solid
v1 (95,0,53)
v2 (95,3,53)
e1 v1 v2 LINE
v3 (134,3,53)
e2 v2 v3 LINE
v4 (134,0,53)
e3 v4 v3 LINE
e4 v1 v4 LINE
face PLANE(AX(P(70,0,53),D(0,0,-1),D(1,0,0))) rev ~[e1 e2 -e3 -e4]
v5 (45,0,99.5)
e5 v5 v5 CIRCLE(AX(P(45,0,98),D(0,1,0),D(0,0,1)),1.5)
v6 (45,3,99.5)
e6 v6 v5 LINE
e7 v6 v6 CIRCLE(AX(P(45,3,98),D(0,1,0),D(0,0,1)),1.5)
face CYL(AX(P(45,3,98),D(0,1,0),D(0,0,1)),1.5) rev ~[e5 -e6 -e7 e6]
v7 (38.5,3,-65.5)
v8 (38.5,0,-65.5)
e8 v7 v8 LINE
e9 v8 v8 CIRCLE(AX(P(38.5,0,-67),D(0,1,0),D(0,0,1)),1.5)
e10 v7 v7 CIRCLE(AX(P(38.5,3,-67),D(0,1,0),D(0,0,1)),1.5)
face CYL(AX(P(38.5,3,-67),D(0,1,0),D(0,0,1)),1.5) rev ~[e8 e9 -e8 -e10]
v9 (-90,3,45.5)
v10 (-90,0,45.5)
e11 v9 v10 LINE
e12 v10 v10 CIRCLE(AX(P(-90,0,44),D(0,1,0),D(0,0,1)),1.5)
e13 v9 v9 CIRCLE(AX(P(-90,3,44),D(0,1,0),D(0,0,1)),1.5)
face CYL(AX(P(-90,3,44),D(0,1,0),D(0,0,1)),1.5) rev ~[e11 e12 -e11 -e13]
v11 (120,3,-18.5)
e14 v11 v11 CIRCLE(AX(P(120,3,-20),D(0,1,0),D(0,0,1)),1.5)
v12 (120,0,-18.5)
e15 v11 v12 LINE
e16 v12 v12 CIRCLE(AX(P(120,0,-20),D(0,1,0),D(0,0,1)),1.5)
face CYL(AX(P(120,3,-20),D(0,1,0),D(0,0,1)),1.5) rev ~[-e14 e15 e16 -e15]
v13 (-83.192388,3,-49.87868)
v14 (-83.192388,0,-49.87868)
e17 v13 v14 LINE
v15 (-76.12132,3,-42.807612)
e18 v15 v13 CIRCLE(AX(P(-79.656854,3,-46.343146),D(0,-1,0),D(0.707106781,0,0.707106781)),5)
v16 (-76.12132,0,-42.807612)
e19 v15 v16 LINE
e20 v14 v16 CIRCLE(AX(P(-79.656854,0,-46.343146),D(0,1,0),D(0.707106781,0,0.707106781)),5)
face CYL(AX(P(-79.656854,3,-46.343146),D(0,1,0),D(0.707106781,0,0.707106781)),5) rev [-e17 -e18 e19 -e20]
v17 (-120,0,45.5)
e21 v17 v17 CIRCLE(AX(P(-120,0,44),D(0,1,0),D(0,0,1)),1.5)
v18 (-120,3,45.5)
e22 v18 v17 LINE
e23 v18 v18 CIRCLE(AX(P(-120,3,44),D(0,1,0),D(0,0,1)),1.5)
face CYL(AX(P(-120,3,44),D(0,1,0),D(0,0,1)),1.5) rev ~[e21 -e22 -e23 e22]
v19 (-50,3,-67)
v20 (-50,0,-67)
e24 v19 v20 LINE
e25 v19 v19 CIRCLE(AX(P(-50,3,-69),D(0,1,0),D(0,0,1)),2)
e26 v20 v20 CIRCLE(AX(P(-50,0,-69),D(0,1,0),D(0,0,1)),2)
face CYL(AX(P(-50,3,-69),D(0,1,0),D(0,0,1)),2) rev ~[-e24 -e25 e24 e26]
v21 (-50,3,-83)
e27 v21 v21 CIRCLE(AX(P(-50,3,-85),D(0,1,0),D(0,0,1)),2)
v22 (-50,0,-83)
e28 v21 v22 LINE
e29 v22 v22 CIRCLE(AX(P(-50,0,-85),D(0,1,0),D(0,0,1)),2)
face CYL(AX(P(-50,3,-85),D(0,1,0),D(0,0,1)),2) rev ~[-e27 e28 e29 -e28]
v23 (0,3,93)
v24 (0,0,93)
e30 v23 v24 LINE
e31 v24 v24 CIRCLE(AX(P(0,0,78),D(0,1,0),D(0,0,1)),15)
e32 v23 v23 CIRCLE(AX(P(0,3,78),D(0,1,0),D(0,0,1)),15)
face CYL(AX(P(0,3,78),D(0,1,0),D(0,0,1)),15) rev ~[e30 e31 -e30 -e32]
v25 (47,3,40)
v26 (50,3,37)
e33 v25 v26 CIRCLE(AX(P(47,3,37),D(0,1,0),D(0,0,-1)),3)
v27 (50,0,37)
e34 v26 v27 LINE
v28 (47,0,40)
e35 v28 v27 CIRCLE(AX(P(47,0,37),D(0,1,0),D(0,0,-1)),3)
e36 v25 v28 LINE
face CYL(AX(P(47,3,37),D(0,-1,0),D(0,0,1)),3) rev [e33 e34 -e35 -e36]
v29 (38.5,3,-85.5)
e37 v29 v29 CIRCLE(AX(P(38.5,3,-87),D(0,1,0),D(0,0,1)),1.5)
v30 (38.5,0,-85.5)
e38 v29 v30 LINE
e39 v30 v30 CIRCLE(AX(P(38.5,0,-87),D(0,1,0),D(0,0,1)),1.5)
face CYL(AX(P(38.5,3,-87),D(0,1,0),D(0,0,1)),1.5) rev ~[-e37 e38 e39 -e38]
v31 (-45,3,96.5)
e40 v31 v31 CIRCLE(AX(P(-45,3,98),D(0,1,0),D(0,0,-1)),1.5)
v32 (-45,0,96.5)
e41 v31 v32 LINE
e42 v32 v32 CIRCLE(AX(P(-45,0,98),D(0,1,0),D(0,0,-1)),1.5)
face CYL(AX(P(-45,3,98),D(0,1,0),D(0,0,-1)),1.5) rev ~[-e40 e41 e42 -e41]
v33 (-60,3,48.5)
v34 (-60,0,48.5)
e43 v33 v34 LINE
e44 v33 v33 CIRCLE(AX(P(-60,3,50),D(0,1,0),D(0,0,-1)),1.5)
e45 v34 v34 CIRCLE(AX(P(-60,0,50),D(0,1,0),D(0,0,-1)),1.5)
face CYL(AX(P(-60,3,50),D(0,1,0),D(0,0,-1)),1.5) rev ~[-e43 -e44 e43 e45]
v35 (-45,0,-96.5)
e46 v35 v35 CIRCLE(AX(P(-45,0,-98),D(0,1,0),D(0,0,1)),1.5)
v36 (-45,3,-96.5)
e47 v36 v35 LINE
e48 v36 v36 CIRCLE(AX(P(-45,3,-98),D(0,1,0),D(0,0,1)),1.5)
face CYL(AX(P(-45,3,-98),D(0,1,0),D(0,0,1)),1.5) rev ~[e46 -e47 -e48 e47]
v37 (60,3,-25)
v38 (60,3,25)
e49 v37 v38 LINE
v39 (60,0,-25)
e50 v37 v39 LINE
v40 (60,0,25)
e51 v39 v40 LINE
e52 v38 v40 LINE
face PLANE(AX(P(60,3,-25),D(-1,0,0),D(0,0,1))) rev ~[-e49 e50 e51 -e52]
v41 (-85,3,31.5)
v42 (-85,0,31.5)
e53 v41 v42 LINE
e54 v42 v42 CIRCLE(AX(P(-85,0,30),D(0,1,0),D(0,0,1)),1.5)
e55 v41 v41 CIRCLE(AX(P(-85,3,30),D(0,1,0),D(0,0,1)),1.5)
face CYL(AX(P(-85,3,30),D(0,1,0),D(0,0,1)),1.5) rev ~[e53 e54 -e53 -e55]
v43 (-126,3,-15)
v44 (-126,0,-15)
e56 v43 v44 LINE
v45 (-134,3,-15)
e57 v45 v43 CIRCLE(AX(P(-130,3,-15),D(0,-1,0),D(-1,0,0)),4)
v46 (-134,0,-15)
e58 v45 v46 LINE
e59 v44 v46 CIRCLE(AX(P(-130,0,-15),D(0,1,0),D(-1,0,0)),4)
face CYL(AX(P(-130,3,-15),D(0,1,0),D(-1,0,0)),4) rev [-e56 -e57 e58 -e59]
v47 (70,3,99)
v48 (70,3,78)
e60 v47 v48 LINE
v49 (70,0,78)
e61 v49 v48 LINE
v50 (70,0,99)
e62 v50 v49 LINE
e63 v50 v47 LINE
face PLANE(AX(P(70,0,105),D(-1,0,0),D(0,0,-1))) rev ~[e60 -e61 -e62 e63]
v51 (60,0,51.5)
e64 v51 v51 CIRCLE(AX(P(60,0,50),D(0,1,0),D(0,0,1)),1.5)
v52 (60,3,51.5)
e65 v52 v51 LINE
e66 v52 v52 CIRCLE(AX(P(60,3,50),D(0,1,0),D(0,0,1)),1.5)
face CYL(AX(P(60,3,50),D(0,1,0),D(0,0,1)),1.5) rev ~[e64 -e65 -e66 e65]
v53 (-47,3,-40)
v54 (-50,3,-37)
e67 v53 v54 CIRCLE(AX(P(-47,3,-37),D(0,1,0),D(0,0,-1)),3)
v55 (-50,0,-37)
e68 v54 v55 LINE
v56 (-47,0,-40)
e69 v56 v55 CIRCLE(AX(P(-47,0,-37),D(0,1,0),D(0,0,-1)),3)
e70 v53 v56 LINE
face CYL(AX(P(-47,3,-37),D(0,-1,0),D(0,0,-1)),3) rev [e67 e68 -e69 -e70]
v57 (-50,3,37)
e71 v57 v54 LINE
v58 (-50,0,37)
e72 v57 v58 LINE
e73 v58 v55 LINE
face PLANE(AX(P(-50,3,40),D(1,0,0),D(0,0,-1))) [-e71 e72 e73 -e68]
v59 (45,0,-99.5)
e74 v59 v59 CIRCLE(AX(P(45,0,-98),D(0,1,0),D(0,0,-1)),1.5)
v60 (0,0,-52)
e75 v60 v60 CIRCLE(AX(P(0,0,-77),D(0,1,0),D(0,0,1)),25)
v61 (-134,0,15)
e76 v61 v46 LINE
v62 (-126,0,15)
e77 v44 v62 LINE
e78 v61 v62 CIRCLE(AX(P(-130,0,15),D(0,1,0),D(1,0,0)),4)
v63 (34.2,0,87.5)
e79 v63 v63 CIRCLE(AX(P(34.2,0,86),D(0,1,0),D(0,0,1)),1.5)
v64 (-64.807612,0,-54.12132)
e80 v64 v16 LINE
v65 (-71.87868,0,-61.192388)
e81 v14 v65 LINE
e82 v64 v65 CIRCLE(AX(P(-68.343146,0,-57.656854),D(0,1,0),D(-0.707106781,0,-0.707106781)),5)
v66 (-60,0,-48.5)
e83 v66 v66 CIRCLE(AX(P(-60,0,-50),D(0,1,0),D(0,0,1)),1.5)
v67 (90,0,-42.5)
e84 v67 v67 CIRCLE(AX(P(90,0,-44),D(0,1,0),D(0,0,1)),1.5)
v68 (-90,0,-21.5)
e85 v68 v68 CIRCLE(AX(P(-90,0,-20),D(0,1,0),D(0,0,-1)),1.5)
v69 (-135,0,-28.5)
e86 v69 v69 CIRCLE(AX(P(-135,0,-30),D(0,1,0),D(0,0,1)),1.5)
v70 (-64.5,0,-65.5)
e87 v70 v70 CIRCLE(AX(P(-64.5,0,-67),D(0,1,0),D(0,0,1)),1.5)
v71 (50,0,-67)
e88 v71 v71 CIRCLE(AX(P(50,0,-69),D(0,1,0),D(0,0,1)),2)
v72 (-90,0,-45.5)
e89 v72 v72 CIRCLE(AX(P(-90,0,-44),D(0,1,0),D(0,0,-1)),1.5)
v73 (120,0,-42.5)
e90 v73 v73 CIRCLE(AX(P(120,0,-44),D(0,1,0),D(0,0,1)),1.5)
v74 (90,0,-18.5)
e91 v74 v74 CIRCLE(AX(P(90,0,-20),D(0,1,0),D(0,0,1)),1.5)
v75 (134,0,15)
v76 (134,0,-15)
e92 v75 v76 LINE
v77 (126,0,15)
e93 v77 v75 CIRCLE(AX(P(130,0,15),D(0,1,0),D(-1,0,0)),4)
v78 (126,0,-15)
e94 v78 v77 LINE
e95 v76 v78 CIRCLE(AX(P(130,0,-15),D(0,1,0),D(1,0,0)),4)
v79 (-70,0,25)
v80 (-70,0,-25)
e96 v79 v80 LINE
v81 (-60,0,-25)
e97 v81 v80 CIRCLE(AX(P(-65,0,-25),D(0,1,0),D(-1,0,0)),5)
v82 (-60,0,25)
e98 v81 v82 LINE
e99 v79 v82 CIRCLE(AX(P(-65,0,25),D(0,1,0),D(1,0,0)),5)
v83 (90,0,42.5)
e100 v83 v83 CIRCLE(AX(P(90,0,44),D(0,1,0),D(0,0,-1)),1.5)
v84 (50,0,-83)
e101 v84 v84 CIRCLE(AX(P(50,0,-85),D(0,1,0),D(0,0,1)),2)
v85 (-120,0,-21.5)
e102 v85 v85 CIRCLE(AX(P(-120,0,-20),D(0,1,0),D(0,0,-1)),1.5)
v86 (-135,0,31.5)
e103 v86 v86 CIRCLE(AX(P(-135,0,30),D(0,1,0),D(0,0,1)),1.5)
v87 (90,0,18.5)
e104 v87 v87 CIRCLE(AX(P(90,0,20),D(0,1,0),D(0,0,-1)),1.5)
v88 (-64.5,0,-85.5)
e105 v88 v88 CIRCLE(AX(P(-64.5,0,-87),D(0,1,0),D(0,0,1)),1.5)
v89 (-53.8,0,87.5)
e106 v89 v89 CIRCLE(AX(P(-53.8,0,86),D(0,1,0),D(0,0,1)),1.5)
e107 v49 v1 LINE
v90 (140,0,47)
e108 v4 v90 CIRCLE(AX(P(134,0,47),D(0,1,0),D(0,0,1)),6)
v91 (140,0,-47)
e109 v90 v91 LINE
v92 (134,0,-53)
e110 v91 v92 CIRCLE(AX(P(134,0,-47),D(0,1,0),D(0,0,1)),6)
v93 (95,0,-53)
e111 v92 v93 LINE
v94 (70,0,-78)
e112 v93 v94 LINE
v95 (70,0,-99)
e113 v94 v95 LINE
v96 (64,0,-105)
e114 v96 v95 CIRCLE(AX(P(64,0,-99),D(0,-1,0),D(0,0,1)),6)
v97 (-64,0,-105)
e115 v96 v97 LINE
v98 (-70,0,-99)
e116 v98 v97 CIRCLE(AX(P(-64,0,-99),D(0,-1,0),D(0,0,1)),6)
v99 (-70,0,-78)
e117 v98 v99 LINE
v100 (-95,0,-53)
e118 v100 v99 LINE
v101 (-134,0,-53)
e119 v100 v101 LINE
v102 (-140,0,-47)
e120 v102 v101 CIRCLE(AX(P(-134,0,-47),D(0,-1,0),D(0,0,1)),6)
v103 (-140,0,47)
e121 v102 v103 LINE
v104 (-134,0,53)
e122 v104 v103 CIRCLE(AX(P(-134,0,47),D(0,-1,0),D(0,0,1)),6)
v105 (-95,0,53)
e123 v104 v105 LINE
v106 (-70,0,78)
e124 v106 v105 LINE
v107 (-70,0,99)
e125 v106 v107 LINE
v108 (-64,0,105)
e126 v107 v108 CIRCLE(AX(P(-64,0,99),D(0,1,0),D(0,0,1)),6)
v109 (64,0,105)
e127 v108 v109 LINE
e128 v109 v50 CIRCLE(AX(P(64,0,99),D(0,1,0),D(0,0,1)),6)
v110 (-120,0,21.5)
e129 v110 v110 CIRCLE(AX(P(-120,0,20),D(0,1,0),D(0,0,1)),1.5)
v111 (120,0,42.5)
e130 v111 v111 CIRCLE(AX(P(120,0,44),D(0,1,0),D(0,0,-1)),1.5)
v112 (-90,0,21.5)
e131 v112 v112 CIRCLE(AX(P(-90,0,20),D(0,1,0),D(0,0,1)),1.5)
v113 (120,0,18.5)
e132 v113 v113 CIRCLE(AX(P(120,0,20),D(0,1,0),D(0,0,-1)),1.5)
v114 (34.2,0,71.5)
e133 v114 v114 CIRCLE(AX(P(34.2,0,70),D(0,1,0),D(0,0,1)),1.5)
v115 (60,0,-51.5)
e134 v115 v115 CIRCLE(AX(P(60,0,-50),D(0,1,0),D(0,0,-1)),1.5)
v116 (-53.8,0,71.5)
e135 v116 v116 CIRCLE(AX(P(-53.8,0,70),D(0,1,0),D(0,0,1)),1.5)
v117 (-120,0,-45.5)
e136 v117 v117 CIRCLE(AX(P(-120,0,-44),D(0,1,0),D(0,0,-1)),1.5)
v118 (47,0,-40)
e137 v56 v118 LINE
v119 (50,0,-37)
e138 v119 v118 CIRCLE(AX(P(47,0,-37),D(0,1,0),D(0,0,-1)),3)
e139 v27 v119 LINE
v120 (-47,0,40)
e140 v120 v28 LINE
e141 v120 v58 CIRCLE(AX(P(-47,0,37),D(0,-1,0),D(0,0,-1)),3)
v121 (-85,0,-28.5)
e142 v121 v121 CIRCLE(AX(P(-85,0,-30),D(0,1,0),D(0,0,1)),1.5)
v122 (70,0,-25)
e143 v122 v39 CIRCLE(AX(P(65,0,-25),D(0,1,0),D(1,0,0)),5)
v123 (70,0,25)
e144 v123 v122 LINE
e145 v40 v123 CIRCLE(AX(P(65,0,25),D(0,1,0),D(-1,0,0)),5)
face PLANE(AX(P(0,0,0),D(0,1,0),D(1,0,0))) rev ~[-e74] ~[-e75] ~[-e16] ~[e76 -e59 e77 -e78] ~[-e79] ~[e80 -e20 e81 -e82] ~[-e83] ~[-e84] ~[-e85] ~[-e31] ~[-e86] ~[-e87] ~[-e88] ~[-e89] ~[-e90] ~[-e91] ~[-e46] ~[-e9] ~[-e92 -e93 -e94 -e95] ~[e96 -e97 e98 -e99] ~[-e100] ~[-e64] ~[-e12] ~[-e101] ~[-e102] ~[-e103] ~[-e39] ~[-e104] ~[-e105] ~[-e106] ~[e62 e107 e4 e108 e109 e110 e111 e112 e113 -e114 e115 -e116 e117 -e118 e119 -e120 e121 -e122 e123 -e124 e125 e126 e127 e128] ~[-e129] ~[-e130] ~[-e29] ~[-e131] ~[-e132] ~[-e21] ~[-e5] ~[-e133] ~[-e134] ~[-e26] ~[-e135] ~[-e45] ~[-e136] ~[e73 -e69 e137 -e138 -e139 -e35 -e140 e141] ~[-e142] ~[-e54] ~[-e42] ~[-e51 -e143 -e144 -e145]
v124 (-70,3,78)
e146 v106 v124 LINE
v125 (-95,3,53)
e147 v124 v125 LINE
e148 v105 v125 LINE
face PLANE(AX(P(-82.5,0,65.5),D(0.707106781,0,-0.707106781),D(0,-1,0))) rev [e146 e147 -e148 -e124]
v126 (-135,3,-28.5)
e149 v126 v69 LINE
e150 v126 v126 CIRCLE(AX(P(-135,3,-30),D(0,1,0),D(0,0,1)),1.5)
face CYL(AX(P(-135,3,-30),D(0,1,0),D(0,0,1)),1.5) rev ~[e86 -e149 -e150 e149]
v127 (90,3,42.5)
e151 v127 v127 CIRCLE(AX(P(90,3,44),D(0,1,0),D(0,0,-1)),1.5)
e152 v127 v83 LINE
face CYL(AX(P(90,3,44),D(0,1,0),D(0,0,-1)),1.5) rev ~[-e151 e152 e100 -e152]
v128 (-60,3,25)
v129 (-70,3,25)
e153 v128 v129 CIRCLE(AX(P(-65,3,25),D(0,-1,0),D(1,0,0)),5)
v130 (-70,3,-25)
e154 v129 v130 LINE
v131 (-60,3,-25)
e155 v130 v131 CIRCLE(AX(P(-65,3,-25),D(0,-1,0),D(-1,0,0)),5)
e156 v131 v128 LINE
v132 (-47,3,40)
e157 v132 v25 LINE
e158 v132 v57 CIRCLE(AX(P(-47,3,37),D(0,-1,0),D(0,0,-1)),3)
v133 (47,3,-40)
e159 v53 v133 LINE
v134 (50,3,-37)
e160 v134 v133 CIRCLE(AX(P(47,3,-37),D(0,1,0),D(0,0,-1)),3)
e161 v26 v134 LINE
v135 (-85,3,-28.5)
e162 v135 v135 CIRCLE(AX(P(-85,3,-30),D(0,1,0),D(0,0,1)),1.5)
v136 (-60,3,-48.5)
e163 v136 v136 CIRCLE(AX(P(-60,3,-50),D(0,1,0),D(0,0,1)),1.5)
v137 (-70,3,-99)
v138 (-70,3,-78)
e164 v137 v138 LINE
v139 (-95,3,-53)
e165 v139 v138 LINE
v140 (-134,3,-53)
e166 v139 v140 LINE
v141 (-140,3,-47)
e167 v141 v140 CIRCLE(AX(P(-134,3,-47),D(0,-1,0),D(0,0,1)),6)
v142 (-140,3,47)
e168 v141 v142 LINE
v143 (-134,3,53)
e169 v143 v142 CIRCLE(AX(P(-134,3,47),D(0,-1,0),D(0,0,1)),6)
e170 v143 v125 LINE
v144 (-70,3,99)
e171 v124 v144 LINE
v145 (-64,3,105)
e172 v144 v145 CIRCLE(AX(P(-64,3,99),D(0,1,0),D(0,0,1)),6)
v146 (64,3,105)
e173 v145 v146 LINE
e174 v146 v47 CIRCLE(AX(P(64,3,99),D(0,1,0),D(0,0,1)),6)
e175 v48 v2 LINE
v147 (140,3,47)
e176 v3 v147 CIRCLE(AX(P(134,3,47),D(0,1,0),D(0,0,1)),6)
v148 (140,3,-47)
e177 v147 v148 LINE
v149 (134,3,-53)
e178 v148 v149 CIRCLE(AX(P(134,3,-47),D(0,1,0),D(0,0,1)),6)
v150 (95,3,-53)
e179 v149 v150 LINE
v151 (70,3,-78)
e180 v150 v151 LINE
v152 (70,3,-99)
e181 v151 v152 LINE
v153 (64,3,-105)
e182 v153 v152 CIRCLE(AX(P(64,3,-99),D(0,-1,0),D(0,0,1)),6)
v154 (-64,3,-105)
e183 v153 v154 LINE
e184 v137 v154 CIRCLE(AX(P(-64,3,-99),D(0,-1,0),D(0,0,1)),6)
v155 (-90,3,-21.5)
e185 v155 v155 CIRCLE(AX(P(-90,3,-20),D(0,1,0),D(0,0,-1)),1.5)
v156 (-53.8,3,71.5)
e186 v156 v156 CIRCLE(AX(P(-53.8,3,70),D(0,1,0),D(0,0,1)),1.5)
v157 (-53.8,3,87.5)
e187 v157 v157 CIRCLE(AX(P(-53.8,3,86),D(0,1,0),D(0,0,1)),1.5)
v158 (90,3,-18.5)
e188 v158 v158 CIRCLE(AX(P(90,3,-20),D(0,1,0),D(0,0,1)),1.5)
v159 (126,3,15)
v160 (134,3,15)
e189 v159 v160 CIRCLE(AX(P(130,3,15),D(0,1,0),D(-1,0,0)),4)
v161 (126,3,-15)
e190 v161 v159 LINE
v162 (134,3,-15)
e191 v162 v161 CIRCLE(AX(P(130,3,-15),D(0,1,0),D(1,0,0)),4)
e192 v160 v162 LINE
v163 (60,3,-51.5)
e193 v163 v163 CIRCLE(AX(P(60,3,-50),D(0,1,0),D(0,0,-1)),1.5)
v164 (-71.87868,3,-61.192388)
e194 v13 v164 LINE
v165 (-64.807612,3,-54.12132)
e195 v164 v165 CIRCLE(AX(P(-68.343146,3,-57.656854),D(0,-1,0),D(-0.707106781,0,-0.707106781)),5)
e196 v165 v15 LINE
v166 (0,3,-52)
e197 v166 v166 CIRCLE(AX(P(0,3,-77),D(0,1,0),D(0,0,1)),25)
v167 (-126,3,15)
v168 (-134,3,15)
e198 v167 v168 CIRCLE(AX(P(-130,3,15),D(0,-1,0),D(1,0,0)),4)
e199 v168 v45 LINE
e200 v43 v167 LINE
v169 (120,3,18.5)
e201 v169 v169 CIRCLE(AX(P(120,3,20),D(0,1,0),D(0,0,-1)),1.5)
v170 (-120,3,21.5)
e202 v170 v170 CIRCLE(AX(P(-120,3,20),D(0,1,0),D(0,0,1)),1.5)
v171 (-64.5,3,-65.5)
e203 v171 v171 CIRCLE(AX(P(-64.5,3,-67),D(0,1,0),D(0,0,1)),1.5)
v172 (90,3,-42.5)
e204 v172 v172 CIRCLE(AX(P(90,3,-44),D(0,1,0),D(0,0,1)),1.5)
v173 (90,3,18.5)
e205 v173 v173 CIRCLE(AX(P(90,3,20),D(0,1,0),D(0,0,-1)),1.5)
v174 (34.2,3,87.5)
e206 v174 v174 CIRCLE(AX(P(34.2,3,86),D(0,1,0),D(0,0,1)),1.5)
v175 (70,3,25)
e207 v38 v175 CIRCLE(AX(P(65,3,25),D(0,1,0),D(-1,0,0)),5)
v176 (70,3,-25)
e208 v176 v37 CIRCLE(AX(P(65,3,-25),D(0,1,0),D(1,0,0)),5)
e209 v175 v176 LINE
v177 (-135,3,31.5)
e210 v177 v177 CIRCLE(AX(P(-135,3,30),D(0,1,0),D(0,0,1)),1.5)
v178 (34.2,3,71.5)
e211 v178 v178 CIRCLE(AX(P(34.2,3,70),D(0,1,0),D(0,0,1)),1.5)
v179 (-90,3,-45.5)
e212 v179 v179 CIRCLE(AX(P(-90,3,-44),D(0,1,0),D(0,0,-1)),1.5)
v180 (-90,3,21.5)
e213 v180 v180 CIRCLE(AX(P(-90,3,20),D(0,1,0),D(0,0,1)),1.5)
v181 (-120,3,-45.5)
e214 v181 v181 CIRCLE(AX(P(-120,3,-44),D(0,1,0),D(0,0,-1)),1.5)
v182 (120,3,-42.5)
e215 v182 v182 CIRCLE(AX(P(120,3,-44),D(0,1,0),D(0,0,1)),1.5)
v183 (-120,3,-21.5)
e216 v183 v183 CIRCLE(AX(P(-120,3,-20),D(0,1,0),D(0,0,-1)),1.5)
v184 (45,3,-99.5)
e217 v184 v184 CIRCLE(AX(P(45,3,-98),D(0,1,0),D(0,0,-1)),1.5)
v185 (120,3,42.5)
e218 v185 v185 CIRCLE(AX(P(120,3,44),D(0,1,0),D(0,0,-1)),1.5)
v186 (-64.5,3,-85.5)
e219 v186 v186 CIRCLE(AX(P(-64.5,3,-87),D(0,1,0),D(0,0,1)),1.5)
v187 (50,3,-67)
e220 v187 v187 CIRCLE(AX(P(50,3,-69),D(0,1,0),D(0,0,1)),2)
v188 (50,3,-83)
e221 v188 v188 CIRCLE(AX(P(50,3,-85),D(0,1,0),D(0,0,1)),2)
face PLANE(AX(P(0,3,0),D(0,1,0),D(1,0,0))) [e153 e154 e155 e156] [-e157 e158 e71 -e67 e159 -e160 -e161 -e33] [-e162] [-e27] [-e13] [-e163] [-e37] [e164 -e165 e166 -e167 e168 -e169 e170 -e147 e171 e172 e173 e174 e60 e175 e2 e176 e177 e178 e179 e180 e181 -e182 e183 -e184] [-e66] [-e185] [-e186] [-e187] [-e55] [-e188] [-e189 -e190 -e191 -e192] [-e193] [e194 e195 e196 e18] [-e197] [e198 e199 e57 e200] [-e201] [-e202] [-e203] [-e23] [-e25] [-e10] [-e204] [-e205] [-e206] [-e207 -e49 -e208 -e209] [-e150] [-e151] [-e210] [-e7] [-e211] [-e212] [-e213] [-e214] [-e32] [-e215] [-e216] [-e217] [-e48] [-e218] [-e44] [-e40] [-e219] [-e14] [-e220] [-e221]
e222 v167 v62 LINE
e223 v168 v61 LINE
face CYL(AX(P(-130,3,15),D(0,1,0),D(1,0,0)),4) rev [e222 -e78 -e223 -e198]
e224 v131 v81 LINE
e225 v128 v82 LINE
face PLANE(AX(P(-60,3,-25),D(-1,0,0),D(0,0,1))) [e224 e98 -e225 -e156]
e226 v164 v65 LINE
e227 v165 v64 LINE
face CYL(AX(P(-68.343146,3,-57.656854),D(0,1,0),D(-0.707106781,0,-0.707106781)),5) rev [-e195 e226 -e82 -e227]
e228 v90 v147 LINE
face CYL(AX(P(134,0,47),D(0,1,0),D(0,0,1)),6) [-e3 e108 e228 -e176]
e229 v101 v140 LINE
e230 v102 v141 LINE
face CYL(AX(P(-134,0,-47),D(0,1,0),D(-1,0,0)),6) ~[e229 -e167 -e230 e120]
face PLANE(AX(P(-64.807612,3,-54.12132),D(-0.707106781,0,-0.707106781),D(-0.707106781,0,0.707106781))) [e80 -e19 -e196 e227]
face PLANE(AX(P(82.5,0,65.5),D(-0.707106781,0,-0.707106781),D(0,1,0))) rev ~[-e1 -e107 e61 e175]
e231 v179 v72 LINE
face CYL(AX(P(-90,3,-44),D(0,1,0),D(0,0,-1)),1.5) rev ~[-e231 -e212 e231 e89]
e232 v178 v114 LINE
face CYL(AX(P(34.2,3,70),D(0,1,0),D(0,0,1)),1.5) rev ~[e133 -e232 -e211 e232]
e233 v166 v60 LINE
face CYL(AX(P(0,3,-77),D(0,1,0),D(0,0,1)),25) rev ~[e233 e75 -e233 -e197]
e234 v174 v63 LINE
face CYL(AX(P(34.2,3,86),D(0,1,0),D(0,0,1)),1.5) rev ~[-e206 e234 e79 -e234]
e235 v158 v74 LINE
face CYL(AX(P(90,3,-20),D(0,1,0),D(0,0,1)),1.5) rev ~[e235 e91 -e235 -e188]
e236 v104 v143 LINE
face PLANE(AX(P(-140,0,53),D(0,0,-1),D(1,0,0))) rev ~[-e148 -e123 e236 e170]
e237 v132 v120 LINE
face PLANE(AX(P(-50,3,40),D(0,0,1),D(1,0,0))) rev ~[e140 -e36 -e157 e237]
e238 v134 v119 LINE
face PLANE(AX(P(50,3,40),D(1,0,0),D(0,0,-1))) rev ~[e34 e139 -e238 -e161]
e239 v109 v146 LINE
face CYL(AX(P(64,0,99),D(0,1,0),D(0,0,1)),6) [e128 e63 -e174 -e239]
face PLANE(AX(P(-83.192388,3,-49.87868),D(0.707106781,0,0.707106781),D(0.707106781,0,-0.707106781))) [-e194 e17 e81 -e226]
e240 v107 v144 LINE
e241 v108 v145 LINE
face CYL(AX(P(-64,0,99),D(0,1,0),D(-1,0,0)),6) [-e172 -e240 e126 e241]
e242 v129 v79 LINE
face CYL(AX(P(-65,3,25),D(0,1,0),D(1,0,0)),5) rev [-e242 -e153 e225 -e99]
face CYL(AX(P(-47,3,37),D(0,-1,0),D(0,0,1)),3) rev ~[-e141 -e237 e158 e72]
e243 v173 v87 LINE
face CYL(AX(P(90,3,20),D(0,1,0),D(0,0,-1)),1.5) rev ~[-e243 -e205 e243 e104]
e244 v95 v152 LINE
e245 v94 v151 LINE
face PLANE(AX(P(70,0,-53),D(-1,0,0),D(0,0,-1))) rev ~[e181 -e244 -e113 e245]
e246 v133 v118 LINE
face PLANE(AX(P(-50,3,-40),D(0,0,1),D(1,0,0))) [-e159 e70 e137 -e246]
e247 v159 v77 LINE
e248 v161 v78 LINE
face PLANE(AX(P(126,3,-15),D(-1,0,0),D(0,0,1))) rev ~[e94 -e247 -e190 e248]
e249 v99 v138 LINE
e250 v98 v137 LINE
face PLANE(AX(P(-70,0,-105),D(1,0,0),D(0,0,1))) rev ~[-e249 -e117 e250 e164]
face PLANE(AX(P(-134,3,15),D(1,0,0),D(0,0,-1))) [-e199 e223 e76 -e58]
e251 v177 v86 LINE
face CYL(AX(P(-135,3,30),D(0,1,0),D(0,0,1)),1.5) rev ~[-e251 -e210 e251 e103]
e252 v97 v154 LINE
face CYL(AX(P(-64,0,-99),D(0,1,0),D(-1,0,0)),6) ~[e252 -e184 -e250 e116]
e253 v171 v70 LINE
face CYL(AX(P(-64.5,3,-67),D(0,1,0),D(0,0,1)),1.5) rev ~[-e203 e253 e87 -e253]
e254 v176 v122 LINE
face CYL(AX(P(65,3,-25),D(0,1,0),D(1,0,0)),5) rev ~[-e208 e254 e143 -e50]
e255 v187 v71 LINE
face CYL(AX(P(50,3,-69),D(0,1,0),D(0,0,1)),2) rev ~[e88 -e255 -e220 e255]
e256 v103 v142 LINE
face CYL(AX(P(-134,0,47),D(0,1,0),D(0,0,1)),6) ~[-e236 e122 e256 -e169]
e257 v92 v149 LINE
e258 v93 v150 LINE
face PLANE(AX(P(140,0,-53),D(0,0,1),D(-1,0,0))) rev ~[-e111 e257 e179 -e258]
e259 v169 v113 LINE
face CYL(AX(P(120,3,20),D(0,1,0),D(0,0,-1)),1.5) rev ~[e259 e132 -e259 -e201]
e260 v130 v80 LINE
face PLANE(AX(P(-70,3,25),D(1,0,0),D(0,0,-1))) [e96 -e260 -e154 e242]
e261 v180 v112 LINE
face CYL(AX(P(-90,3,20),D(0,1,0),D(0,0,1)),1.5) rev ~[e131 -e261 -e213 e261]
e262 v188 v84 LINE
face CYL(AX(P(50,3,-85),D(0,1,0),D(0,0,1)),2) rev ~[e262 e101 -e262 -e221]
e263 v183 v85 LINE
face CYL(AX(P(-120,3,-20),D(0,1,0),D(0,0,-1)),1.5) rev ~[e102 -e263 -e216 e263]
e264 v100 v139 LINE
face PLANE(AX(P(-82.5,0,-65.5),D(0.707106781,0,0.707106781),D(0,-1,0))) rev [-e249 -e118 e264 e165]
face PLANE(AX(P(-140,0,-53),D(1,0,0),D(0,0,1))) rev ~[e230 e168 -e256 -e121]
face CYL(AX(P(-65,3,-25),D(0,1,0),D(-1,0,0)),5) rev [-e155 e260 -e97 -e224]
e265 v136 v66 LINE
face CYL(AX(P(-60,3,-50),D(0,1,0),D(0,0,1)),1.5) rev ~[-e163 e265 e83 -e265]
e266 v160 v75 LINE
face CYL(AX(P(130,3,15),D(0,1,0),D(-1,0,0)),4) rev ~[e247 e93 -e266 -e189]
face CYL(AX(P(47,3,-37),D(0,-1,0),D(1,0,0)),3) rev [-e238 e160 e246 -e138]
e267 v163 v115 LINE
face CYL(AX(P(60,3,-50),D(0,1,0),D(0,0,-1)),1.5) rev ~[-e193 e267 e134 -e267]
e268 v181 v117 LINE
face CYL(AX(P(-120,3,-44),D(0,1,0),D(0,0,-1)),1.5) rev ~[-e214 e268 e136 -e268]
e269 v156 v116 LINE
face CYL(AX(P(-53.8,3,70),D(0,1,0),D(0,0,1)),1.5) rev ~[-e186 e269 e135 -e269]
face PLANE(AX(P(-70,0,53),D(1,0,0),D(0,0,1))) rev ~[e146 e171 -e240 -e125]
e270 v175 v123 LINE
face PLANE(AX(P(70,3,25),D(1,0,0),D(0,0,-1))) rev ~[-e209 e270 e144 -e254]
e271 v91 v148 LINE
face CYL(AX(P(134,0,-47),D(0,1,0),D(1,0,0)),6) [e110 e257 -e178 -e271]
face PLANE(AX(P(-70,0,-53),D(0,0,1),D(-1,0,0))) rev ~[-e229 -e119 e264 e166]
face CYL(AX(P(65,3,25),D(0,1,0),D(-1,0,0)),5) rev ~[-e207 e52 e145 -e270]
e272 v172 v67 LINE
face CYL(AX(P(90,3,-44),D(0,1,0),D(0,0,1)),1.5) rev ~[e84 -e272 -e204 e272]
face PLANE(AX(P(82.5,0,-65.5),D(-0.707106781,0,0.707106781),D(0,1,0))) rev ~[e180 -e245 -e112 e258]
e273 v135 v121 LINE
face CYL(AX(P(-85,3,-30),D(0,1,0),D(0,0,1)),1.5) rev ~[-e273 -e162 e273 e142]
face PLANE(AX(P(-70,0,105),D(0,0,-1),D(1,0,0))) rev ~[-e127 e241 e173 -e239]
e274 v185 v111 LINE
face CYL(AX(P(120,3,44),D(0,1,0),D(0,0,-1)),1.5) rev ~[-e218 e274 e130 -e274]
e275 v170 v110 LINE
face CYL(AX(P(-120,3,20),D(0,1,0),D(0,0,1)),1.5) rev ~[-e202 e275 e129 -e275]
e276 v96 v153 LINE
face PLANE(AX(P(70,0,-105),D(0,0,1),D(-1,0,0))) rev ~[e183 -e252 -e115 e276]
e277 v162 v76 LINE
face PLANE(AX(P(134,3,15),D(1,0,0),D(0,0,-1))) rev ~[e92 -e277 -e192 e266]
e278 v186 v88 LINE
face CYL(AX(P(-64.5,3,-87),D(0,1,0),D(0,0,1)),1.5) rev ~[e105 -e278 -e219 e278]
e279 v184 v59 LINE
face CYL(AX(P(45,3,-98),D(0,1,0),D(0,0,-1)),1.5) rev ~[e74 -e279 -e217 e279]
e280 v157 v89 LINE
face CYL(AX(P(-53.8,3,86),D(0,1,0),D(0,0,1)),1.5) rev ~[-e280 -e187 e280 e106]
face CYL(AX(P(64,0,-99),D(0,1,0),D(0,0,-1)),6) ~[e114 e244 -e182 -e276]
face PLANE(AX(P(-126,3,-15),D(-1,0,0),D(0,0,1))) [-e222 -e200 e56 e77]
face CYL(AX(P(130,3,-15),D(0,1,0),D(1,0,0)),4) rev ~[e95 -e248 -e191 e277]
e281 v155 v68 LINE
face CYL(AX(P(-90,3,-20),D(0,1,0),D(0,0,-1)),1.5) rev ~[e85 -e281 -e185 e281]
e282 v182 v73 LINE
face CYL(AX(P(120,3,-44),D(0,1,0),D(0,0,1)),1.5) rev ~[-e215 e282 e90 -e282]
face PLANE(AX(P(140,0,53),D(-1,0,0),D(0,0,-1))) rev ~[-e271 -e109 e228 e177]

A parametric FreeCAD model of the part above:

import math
import FreeCAD as App
import Part
import Sketcher
Q = App.Units.Quantity


def edges_at(feature, points):
    """Names of the edges that pass closest to the given points."""
    edges = feature.Shape.Edges
    near = lambda p: min(range(len(edges)), key=lambda i: edges[i].distToShape(Part.Vertex(*p))[0])
    return sorted({f"Edge{near(p) + 1}" for p in points})

doc = App.newDocument("Part")
body = doc.addObject("PartDesign::Body", "Body")

sketch1 = body.newObject("Sketcher::SketchObject", "Sketch")
sketch1.AttachmentSupport = (doc.getObject("XZ_Plane"), [""])
sketch1.MapMode = "FlatFace"
sketch1.addGeometry(Part.LineSegment(App.Vector(-70, 53, 0), App.Vector(-70, 105, 0)), False)
sketch1.addGeometry(Part.LineSegment(App.Vector(-70, 105, 0), App.Vector(70, 105, 0)), False)
sketch1.addGeometry(Part.LineSegment(App.Vector(70, 105, 0), App.Vector(70, 53, 0)), False)
sketch1.addGeometry(Part.LineSegment(App.Vector(70, 53, 0), App.Vector(140, 53, 0)), False)
sketch1.addGeometry(Part.LineSegment(App.Vector(140, 53, 0), App.Vector(140, -53, 0)), False)
sketch1.addGeometry(Part.LineSegment(App.Vector(140, -53, 0), App.Vector(70, -53, 0)), False)
sketch1.addGeometry(Part.LineSegment(App.Vector(70, -53, 0), App.Vector(70, -105, 0)), False)
sketch1.addGeometry(Part.LineSegment(App.Vector(70, -105, 0), App.Vector(-70, -105, 0)), False)
sketch1.addGeometry(Part.LineSegment(App.Vector(-70, -105, 0), App.Vector(-70, -53, 0)), False)
sketch1.addGeometry(Part.LineSegment(App.Vector(-70, -53, 0), App.Vector(-140, -53, 0)), False)
sketch1.addGeometry(Part.LineSegment(App.Vector(-140, -53, 0), App.Vector(-140, 53, 0)), False)
sketch1.addGeometry(Part.LineSegment(App.Vector(-140, 53, 0), App.Vector(-70, 53, 0)), False)
sketch1.addConstraint(Sketcher.Constraint("Coincident", 0, 2, 1, 1))
sketch1.addConstraint(Sketcher.Constraint("Coincident", 1, 2, 2, 1))
sketch1.addConstraint(Sketcher.Constraint("Coincident", 2, 2, 3, 1))
sketch1.addConstraint(Sketcher.Constraint("Coincident", 3, 2, 4, 1))
sketch1.addConstraint(Sketcher.Constraint("Coincident", 4, 2, 5, 1))
sketch1.addConstraint(Sketcher.Constraint("Coincident", 5, 2, 6, 1))
sketch1.addConstraint(Sketcher.Constraint("Coincident", 6, 2, 7, 1))
sketch1.addConstraint(Sketcher.Constraint("Coincident", 7, 2, 8, 1))
sketch1.addConstraint(Sketcher.Constraint("Coincident", 8, 2, 9, 1))
sketch1.addConstraint(Sketcher.Constraint("Coincident", 9, 2, 10, 1))
sketch1.addConstraint(Sketcher.Constraint("Coincident", 10, 2, 11, 1))
sketch1.addConstraint(Sketcher.Constraint("Coincident", 11, 2, 0, 1))
sketch1.addConstraint(Sketcher.Constraint("Vertical", 0))
sketch1.addConstraint(Sketcher.Constraint("Horizontal", 1))
sketch1.addConstraint(Sketcher.Constraint("Vertical", 2))
sketch1.addConstraint(Sketcher.Constraint("Horizontal", 3))
sketch1.addConstraint(Sketcher.Constraint("Vertical", 4))
sketch1.addConstraint(Sketcher.Constraint("Horizontal", 5))
sketch1.addConstraint(Sketcher.Constraint("Vertical", 6))
sketch1.addConstraint(Sketcher.Constraint("Horizontal", 7))
sketch1.addConstraint(Sketcher.Constraint("Vertical", 8))
sketch1.addConstraint(Sketcher.Constraint("Horizontal", 9))
sketch1.addConstraint(Sketcher.Constraint("Vertical", 10))
sketch1.addConstraint(Sketcher.Constraint("Horizontal", 11))
sketch1.addConstraint(Sketcher.Constraint("Symmetric", 0, 2, 6, 2, -1, 1))
sketch1.addConstraint(Sketcher.Constraint("Symmetric", 2, 2, 8, 2, -1, 1))
sketch1.addConstraint(Sketcher.Constraint("Symmetric", 4, 2, 10, 2, -1, 1))
sketch1.addConstraint(Sketcher.Constraint("Symmetric", 5, 2, 8, 2, -2))
sketch1.addConstraint(Sketcher.Constraint("DistanceX", 1, 1, 1, 2, Q("140 mm")))
sketch1.addConstraint(Sketcher.Constraint("DistanceX", 3, 1, 3, 2, Q("70 mm")))
sketch1.addConstraint(Sketcher.Constraint("DistanceY", 0, 1, 0, 2, Q("52 mm")))
sketch1.addConstraint(Sketcher.Constraint("DistanceY", 4, 2, 4, 1, Q("106 mm")))
pad1 = body.newObject("PartDesign::Pad", "Pad")
pad1.Profile = sketch1
pad1.Length = 3
pad1.Reversed = True

sketch2 = body.newObject("Sketcher::SketchObject", "Sketch001")
sketch2.AttachmentSupport = (doc.getObject("XZ_Plane"), [""])
sketch2.MapMode = "FlatFace"
sketch2.AttachmentOffset = App.Placement(App.Vector(0, 0, -3), App.Rotation())
sketch2.addGeometry(Part.Circle(App.Vector(120, -44, 0), App.Vector(0, 0, 1), 1.5), False)
sketch2.addGeometry(Part.Circle(App.Vector(90, -44, 0), App.Vector(0, 0, 1), 1.5), False)
sketch2.addGeometry(Part.Circle(App.Vector(90, -20, 0), App.Vector(0, 0, 1), 1.5), False)
sketch2.addGeometry(Part.Circle(App.Vector(120, -20, 0), App.Vector(0, 0, 1), 1.5), False)
sketch2.addGeometry(Part.Circle(App.Vector(120, 20, 0), App.Vector(0, 0, 1), 1.5), False)
sketch2.addGeometry(Part.Circle(App.Vector(120, 44, 0), App.Vector(0, 0, 1), 1.5), False)
sketch2.addGeometry(Part.Circle(App.Vector(90, 20, 0), App.Vector(0, 0, 1), 1.5), False)
sketch2.addGeometry(Part.Circle(App.Vector(90, 44, 0), App.Vector(0, 0, 1), 1.5), False)
sketch2.addGeometry(Part.Circle(App.Vector(-90, 44, 0), App.Vector(0, 0, 1), 1.5), False)
sketch2.addGeometry(Part.Circle(App.Vector(-90, 20, 0), App.Vector(0, 0, 1), 1.5), False)
sketch2.addGeometry(Part.Circle(App.Vector(-120, 44, 0), App.Vector(0, 0, 1), 1.5), False)
sketch2.addGeometry(Part.Circle(App.Vector(-120, 20, 0), App.Vector(0, 0, 1), 1.5), False)
sketch2.addGeometry(Part.Circle(App.Vector(-120, -20, 0), App.Vector(0, 0, 1), 1.5), False)
sketch2.addGeometry(Part.Circle(App.Vector(-90, -20, 0), App.Vector(0, 0, 1), 1.5), False)
sketch2.addGeometry(Part.Circle(App.Vector(-90, -44, 0), App.Vector(0, 0, 1), 1.5), False)
sketch2.addGeometry(Part.Circle(App.Vector(-120, -44, 0), App.Vector(0, 0, 1), 1.5), False)
sketch2.addConstraint(Sketcher.Constraint("Equal", 0, 1))
sketch2.addConstraint(Sketcher.Constraint("Equal", 1, 2))
sketch2.addConstraint(Sketcher.Constraint("Equal", 2, 3))
sketch2.addConstraint(Sketcher.Constraint("Equal", 3, 4))
sketch2.addConstraint(Sketcher.Constraint("Equal", 4, 5))
sketch2.addConstraint(Sketcher.Constraint("Equal", 5, 6))
sketch2.addConstraint(Sketcher.Constraint("Equal", 6, 7))
sketch2.addConstraint(Sketcher.Constraint("Equal", 7, 8))
sketch2.addConstraint(Sketcher.Constraint("Equal", 8, 9))
sketch2.addConstraint(Sketcher.Constraint("Equal", 9, 10))
sketch2.addConstraint(Sketcher.Constraint("Equal", 10, 11))
sketch2.addConstraint(Sketcher.Constraint("Equal", 11, 12))
sketch2.addConstraint(Sketcher.Constraint("Equal", 12, 13))
sketch2.addConstraint(Sketcher.Constraint("Equal", 13, 14))
sketch2.addConstraint(Sketcher.Constraint("Equal", 14, 15))
sketch2.addConstraint(Sketcher.Constraint("Symmetric", 1, 3, 8, 3, -1, 1))
sketch2.addConstraint(Sketcher.Constraint("Symmetric", 2, 3, 9, 3, -1, 1))
sketch2.addConstraint(Sketcher.Constraint("Symmetric", 0, 3, 10, 3, -1, 1))
sketch2.addConstraint(Sketcher.Constraint("Symmetric", 3, 3, 11, 3, -1, 1))
sketch2.addConstraint(Sketcher.Constraint("Symmetric", 4, 3, 12, 3, -1, 1))
sketch2.addConstraint(Sketcher.Constraint("Symmetric", 6, 3, 13, 3, -1, 1))
sketch2.addConstraint(Sketcher.Constraint("Symmetric", 7, 3, 14, 3, -1, 1))
sketch2.addConstraint(Sketcher.Constraint("Symmetric", 5, 3, 15, 3, -1, 1))
sketch2.addConstraint(Sketcher.Constraint("Symmetric", 7, 3, 8, 3, -2))
sketch2.addConstraint(Sketcher.Constraint("Symmetric", 6, 3, 9, 3, -2))
sketch2.addConstraint(Sketcher.Constraint("Symmetric", 5, 3, 10, 3, -2))
sketch2.addConstraint(Sketcher.Constraint("Symmetric", 4, 3, 11, 3, -2))
sketch2.addConstraint(Sketcher.Constraint("Horizontal", 0, 3, 1, 3))
sketch2.addConstraint(Sketcher.Constraint("Horizontal", 2, 3, 3, 3))
sketch2.addConstraint(Sketcher.Constraint("Vertical", 1, 3, 2, 3))
sketch2.addConstraint(Sketcher.Constraint("Vertical", 0, 3, 3, 3))
sketch2.addConstraint(Sketcher.Constraint("Diameter", 0, Q("3 mm")))
sketch2.addConstraint(Sketcher.Constraint("DistanceX", -1, 1, 0, 3, Q("120 mm")))
sketch2.addConstraint(Sketcher.Constraint("DistanceY", 0, 3, -1, 1, Q("44 mm")))
sketch2.addConstraint(Sketcher.Constraint("DistanceX", -1, 1, 1, 3, Q("90 mm")))
sketch2.addConstraint(Sketcher.Constraint("DistanceY", 2, 3, -1, 1, Q("20 mm")))
pocket1 = body.newObject("PartDesign::Pocket", "Pocket")
pocket1.Profile = sketch2
pocket1.Length = 3
pocket1.Reversed = True

sketch3 = body.newObject("Sketcher::SketchObject", "Sketch002")
sketch3.AttachmentSupport = (doc.getObject("XZ_Plane"), [""])
sketch3.MapMode = "FlatFace"
sketch3.AttachmentOffset = App.Placement(App.Vector(0, 0, -3), App.Rotation())
sketch3.addGeometry(Part.Circle(App.Vector(-64.5, -87, 0), App.Vector(0, 0, 1), 1.5), False)
sketch3.addGeometry(Part.Circle(App.Vector(-64.5, -67, 0), App.Vector(0, 0, 1), 1.5), False)
sketch3.addGeometry(Part.Circle(App.Vector(0, -77, 0), App.Vector(0, 0, 1), 25), False)
sketch3.addGeometry(Part.Circle(App.Vector(34.2, 70, 0), App.Vector(0, 0, 1), 1.5), False)
sketch3.addGeometry(Part.Circle(App.Vector(34.2, 86, 0), App.Vector(0, 0, 1), 1.5), False)
sketch3.addGeometry(Part.Circle(App.Vector(0, 78, 0), App.Vector(0, 0, 1), 15), False)
sketch3.addGeometry(Part.Circle(App.Vector(-50, -85, 0), App.Vector(0, 0, 1), 2), False)
sketch3.addGeometry(Part.Circle(App.Vector(-50, -69, 0), App.Vector(0, 0, 1), 2), False)
sketch3.addGeometry(Part.Circle(App.Vector(50, -85, 0), App.Vector(0, 0, 1), 2), False)
sketch3.addGeometry(Part.Circle(App.Vector(50, -69, 0), App.Vector(0, 0, 1), 2), False)
sketch3.addGeometry(Part.Circle(App.Vector(38.5, -87, 0), App.Vector(0, 0, 1), 1.5), False)
sketch3.addGeometry(Part.Circle(App.Vector(38.5, -67, 0), App.Vector(0, 0, 1), 1.5), False)
sketch3.addGeometry(Part.Circle(App.Vector(-53.8, 86, 0), App.Vector(0, 0, 1), 1.5), False)
sketch3.addGeometry(Part.Circle(App.Vector(-53.8, 70, 0), App.Vector(0, 0, 1), 1.5), False)
sketch3.addConstraint(Sketcher.Constraint("Equal", 0, 1))
sketch3.addConstraint(Sketcher.Constraint("Equal", 1, 3))
sketch3.addConstraint(Sketcher.Constraint("Equal", 3, 4))
sketch3.addConstraint(Sketcher.Constraint("Equal", 6, 7))
sketch3.addConstraint(Sketcher.Constraint("Equal", 7, 8))
sketch3.addConstraint(Sketcher.Constraint("Equal", 8, 9))
sketch3.addConstraint(Sketcher.Constraint("Equal", 4, 10))
sketch3.addConstraint(Sketcher.Constraint("Equal", 10, 11))
sketch3.addConstraint(Sketcher.Constraint("Equal", 11, 12))
sketch3.addConstraint(Sketcher.Constraint("Equal", 12, 13))
sketch3.addConstraint(Sketcher.Constraint("Symmetric", 6, 3, 8, 3, -2))
sketch3.addConstraint(Sketcher.Constraint("Symmetric", 7, 3, 9, 3, -2))
sketch3.addConstraint(Sketcher.Constraint("PointOnObject", 2, 3, -2))
sketch3.addConstraint(Sketcher.Constraint("PointOnObject", 5, 3, -2))
sketch3.addConstraint(Sketcher.Constraint("Horizontal", 0, 3, 10, 3))
sketch3.addConstraint(Sketcher.Constraint("Horizontal", 1, 3, 11, 3))
sketch3.addConstraint(Sketcher.Constraint("Horizontal", 4, 3, 12, 3))
sketch3.addConstraint(Sketcher.Constraint("Horizontal", 3, 3, 13, 3))
sketch3.addConstraint(Sketcher.Constraint("Vertical", 0, 3, 1, 3))
sketch3.addConstraint(Sketcher.Constraint("Vertical", 3, 3, 4, 3))
sketch3.addConstraint(Sketcher.Constraint("Vertical", 6, 3, 7, 3))
sketch3.addConstraint(Sketcher.Constraint("Vertical", 10, 3, 11, 3))
sketch3.addConstraint(Sketcher.Constraint("Vertical", 12, 3, 13, 3))
sketch3.addConstraint(Sketcher.Constraint("Diameter", 0, Q("3 mm")))
sketch3.addConstraint(Sketcher.Constraint("Diameter", 2, Q("50 mm")))
sketch3.addConstraint(Sketcher.Constraint("Diameter", 5, Q("30 mm")))
sketch3.addConstraint(Sketcher.Constraint("Diameter", 6, Q("4 mm")))
sketch3.addConstraint(Sketcher.Constraint("DistanceY", 0, 3, -1, 1, Q("87 mm")))
sketch3.addConstraint(Sketcher.Constraint("DistanceY", 1, 3, -1, 1, Q("67 mm")))
sketch3.addConstraint(Sketcher.Constraint("DistanceY", 2, 3, -1, 1, Q("77 mm")))
sketch3.addConstraint(Sketcher.Constraint("DistanceY", -1, 1, 3, 3, Q("70 mm")))
sketch3.addConstraint(Sketcher.Constraint("DistanceY", -1, 1, 4, 3, Q("86 mm")))
sketch3.addConstraint(Sketcher.Constraint("DistanceY", -1, 1, 5, 3, Q("78 mm")))
sketch3.addConstraint(Sketcher.Constraint("DistanceX", 6, 3, -1, 1, Q("50 mm")))
sketch3.addConstraint(Sketcher.Constraint("DistanceY", 6, 3, -1, 1, Q("85 mm")))
sketch3.addConstraint(Sketcher.Constraint("DistanceY", 7, 3, -1, 1, Q("69 mm")))
sketch3.addConstraint(Sketcher.Constraint("DistanceX", 12, 3, 4, 3, Q("88 mm")))
sketch3.addConstraint(Sketcher.Constraint("DistanceX", 0, 3, -1, 1, Q("64.5 mm")))
sketch3.addConstraint(Sketcher.Constraint("DistanceX", -1, 1, 3, 3, Q("34.2 mm")))
sketch3.addConstraint(Sketcher.Constraint("DistanceX", -1, 1, 10, 3, Q("38.5 mm")))
pocket2 = body.newObject("PartDesign::Pocket", "Pocket001")
pocket2.Profile = sketch3
pocket2.Length = 10
pocket2.Reversed = True

sketch4 = body.newObject("Sketcher::SketchObject", "Sketch003")
sketch4.AttachmentSupport = (doc.getObject("XZ_Plane"), [""])
sketch4.MapMode = "FlatFace"
sketch4.AttachmentOffset = App.Placement(App.Vector(0, 0, -3), App.Rotation())
sketch4.addGeometry(Part.LineSegment(App.Vector(-50, -40, 0), App.Vector(-50, 40, 0)), False)
sketch4.addGeometry(Part.LineSegment(App.Vector(-50, 40, 0), App.Vector(50, 40, 0)), False)
sketch4.addGeometry(Part.LineSegment(App.Vector(50, 40, 0), App.Vector(50, -40, 0)), False)
sketch4.addGeometry(Part.LineSegment(App.Vector(50, -40, 0), App.Vector(-50, -40, 0)), False)
sketch4.addConstraint(Sketcher.Constraint("Coincident", 0, 2, 1, 1))
sketch4.addConstraint(Sketcher.Constraint("Coincident", 1, 2, 2, 1))
sketch4.addConstraint(Sketcher.Constraint("Coincident", 2, 2, 3, 1))
sketch4.addConstraint(Sketcher.Constraint("Coincident", 3, 2, 0, 1))
sketch4.addConstraint(Sketcher.Constraint("Vertical", 0))
sketch4.addConstraint(Sketcher.Constraint("Horizontal", 1))
sketch4.addConstraint(Sketcher.Constraint("Vertical", 2))
sketch4.addConstraint(Sketcher.Constraint("Horizontal", 3))
sketch4.addConstraint(Sketcher.Constraint("Symmetric", 0, 2, 2, 2, -1, 1))
sketch4.addConstraint(Sketcher.Constraint("DistanceX", 1, 1, 1, 2, Q("100 mm")))
sketch4.addConstraint(Sketcher.Constraint("DistanceY", 0, 1, 0, 2, Q("80 mm")))
pocket3 = body.newObject("PartDesign::Pocket", "Pocket002")
pocket3.Profile = sketch4
pocket3.Length = 3
pocket3.Reversed = True
doc.recompute()

fillet = body.newObject("PartDesign::Fillet", "Fillet")
fillet.Base = (pocket3, edges_at(pocket3, [
    (50, 1.5, -40),
    (50, 1.5, 40),
    (-50, 1.5, 40),
    (-50, 1.5, -40),
]))
fillet.Radius = 3

sketch5 = body.newObject("Sketcher::SketchObject", "Sketch004")
sketch5.AttachmentSupport = (doc.getObject("XZ_Plane"), [""])
sketch5.MapMode = "FlatFace"
sketch5.AttachmentOffset = App.Placement(App.Vector(0, 0, -3), App.Rotation())
sketch5.addGeometry(Part.Circle(App.Vector(-60, -50, 0), App.Vector(0, 0, 1), 1.5), False)
sketch5.addGeometry(Part.Circle(App.Vector(-45, -98, 0), App.Vector(0, 0, 1), 1.5), False)
sketch5.addGeometry(Part.Circle(App.Vector(60, -50, 0), App.Vector(0, 0, 1), 1.5), False)
sketch5.addGeometry(Part.Circle(App.Vector(45, -98, 0), App.Vector(0, 0, 1), 1.5), False)
sketch5.addGeometry(Part.Circle(App.Vector(45, 98, 0), App.Vector(0, 0, 1), 1.5), False)
sketch5.addGeometry(Part.Circle(App.Vector(60, 50, 0), App.Vector(0, 0, 1), 1.5), False)
sketch5.addGeometry(Part.Circle(App.Vector(-45, 98, 0), App.Vector(0, 0, 1), 1.5), False)
sketch5.addGeometry(Part.Circle(App.Vector(-60, 50, 0), App.Vector(0, 0, 1), 1.5), False)
sketch5.addConstraint(Sketcher.Constraint("Equal", 0, 1))
sketch5.addConstraint(Sketcher.Constraint("Equal", 1, 2))
sketch5.addConstraint(Sketcher.Constraint("Equal", 2, 3))
sketch5.addConstraint(Sketcher.Constraint("Equal", 3, 4))
sketch5.addConstraint(Sketcher.Constraint("Equal", 4, 5))
sketch5.addConstraint(Sketcher.Constraint("Equal", 5, 6))
sketch5.addConstraint(Sketcher.Constraint("Equal", 6, 7))
sketch5.addConstraint(Sketcher.Constraint("Symmetric", 1, 3, 4, 3, -1, 1))
sketch5.addConstraint(Sketcher.Constraint("Symmetric", 0, 3, 5, 3, -1, 1))
sketch5.addConstraint(Sketcher.Constraint("Symmetric", 3, 3, 6, 3, -1, 1))
sketch5.addConstraint(Sketcher.Constraint("Symmetric", 2, 3, 7, 3, -1, 1))
sketch5.addConstraint(Sketcher.Constraint("Symmetric", 0, 3, 2, 3, -2))
sketch5.addConstraint(Sketcher.Constraint("Symmetric", 1, 3, 3, 3, -2))
sketch5.addConstraint(Sketcher.Constraint("Diameter", 0, Q("3 mm")))
sketch5.addConstraint(Sketcher.Constraint("DistanceX", 0, 3, -1, 1, Q("60 mm")))
sketch5.addConstraint(Sketcher.Constraint("DistanceY", 0, 3, -1, 1, Q("50 mm")))
sketch5.addConstraint(Sketcher.Constraint("DistanceX", 1, 3, -1, 1, Q("45 mm")))
sketch5.addConstraint(Sketcher.Constraint("DistanceY", 1, 3, -1, 1, Q("98 mm")))
pocket4 = body.newObject("PartDesign::Pocket", "Pocket003")
pocket4.Profile = sketch5
pocket4.Length = 3
pocket4.Reversed = True
doc.recompute()

fillet2 = body.newObject("PartDesign::Fillet", "Fillet001")
fillet2.Base = (pocket4, edges_at(pocket4, [
    (-140, 1.5, 53),
    (-140, 1.5, -53),
    (-70, 1.5, -105),
    (70, 1.5, -105),
    (140, 1.5, -53),
    (140, 1.5, 53),
    (70, 1.5, 105),
    (-70, 1.5, 105),
]))
fillet2.Radius = 6
doc.recompute()

chamfer = body.newObject("PartDesign::Chamfer", "Chamfer")
chamfer.Base = (fillet2, edges_at(fillet2, [
    (-70, 1.5, 53),
    (-70, 1.5, -53),
    (70, 1.5, -53),
    (70, 1.5, 53),
]))
chamfer.Size = 25

sketch6 = body.newObject("Sketcher::SketchObject", "Sketch005")
sketch6.AttachmentSupport = (doc.getObject("XZ_Plane"), [""])
sketch6.MapMode = "FlatFace"
sketch6.AttachmentOffset = App.Placement(App.Vector(0, 0, -3), App.Rotation())
sketch6.addGeometry(Part.Circle(App.Vector(-135, -30, 0), App.Vector(0, 0, 1), 1.5), False)
sketch6.addGeometry(Part.Circle(App.Vector(-85, -30, 0), App.Vector(0, 0, 1), 1.5), False)
sketch6.addGeometry(Part.Circle(App.Vector(-85, 30, 0), App.Vector(0, 0, 1), 1.5), False)
sketch6.addGeometry(Part.Circle(App.Vector(-135, 30, 0), App.Vector(0, 0, 1), 1.5), False)
sketch6.addGeometry(Part.LineSegment(App.Vector(-134, -15, 0), App.Vector(-134, 15, 0)), False)
sketch6.addGeometry(Part.ArcOfCircle(Part.Circle(App.Vector(-130, 15, 0), App.Vector(0, 0, 1), 4), math.radians(0), math.radians(180)), False)
sketch6.addGeometry(Part.LineSegment(App.Vector(-126, 15, 0), App.Vector(-126, -15, 0)), False)
sketch6.addGeometry(Part.ArcOfCircle(Part.Circle(App.Vector(-130, -15, 0), App.Vector(0, 0, 1), 4), math.radians(180), math.radians(360)), False)
sketch6.addGeometry(Part.LineSegment(App.Vector(-70, -25, 0), App.Vector(-70, 25, 0)), False)
sketch6.addGeometry(Part.ArcOfCircle(Part.Circle(App.Vector(-65, 25, 0), App.Vector(0, 0, 1), 5), math.radians(0), math.radians(180)), False)
sketch6.addGeometry(Part.LineSegment(App.Vector(-60, 25, 0), App.Vector(-60, -25, 0)), False)
sketch6.addGeometry(Part.ArcOfCircle(Part.Circle(App.Vector(-65, -25, 0), App.Vector(0, 0, 1), 5), math.radians(180), math.radians(360)), False)
sketch6.addGeometry(Part.LineSegment(App.Vector(-71.9, -61.2, 0), App.Vector(-83.2, -49.9, 0)), False)
sketch6.addGeometry(Part.ArcOfCircle(Part.Circle(App.Vector(-79.7, -46.3, 0), App.Vector(0, 0, 1), 5), math.radians(45), math.radians(225)), False)
sketch6.addGeometry(Part.LineSegment(App.Vector(-76.1, -42.8, 0), App.Vector(-64.8, -54.1, 0)), False)
sketch6.addGeometry(Part.ArcOfCircle(Part.Circle(App.Vector(-68.3, -57.7, 0), App.Vector(0, 0, 1), 5), math.radians(-135), math.radians(45)), False)
sketch6.addGeometry(Part.LineSegment(App.Vector(134, 15, 0), App.Vector(134, -15, 0)), False)
sketch6.addGeometry(Part.ArcOfCircle(Part.Circle(App.Vector(130, -15, 0), App.Vector(0, 0, 1), 4), math.radians(180), math.radians(360)), False)
sketch6.addGeometry(Part.LineSegment(App.Vector(126, -15, 0), App.Vector(126, 15, 0)), False)
sketch6.addGeometry(Part.ArcOfCircle(Part.Circle(App.Vector(130, 15, 0), App.Vector(0, 0, 1), 4), math.radians(0), math.radians(180)), False)
sketch6.addGeometry(Part.LineSegment(App.Vector(70, 25, 0), App.Vector(70, -25, 0)), False)
sketch6.addGeometry(Part.ArcOfCircle(Part.Circle(App.Vector(65, -25, 0), App.Vector(0, 0, 1), 5), math.radians(180), math.radians(360)), False)
sketch6.addGeometry(Part.LineSegment(App.Vector(60, -25, 0), App.Vector(60, 25, 0)), False)
sketch6.addGeometry(Part.ArcOfCircle(Part.Circle(App.Vector(65, 25, 0), App.Vector(0, 0, 1), 5), math.radians(0), math.radians(180)), False)
sketch6.addConstraint(Sketcher.Constraint("Tangent", 4, 2, 5, 2))
sketch6.addConstraint(Sketcher.Constraint("Tangent", 5, 1, 6, 1))
sketch6.addConstraint(Sketcher.Constraint("Tangent", 6, 2, 7, 2))
sketch6.addConstraint(Sketcher.Constraint("Tangent", 7, 1, 4, 1))
sketch6.addConstraint(Sketcher.Constraint("Tangent", 8, 2, 9, 2))
sketch6.addConstraint(Sketcher.Constraint("Tangent", 9, 1, 10, 1))
sketch6.addConstraint(Sketcher.Constraint("Tangent", 10, 2, 11, 2))
sketch6.addConstraint(Sketcher.Constraint("Tangent", 11, 1, 8, 1))
sketch6.addConstraint(Sketcher.Constraint("Tangent", 12, 2, 13, 2))
sketch6.addConstraint(Sketcher.Constraint("Tangent", 13, 1, 14, 1))
sketch6.addConstraint(Sketcher.Constraint("Tangent", 14, 2, 15, 2))
sketch6.addConstraint(Sketcher.Constraint("Tangent", 15, 1, 12, 1))
sketch6.addConstraint(Sketcher.Constraint("Tangent", 16, 2, 17, 2))
sketch6.addConstraint(Sketcher.Constraint("Tangent", 17, 1, 18, 1))
sketch6.addConstraint(Sketcher.Constraint("Tangent", 18, 2, 19, 2))
sketch6.addConstraint(Sketcher.Constraint("Tangent", 19, 1, 16, 1))
sketch6.addConstraint(Sketcher.Constraint("Tangent", 20, 2, 21, 2))
sketch6.addConstraint(Sketcher.Constraint("Tangent", 21, 1, 22, 1))
sketch6.addConstraint(Sketcher.Constraint("Tangent", 22, 2, 23, 2))
sketch6.addConstraint(Sketcher.Constraint("Tangent", 23, 1, 20, 1))
sketch6.addConstraint(Sketcher.Constraint("Vertical", 4))
sketch6.addConstraint(Sketcher.Constraint("Vertical", 6))
sketch6.addConstraint(Sketcher.Constraint("Vertical", 8))
sketch6.addConstraint(Sketcher.Constraint("Vertical", 10))
sketch6.addConstraint(Sketcher.Constraint("Vertical", 16))
sketch6.addConstraint(Sketcher.Constraint("Vertical", 18))
sketch6.addConstraint(Sketcher.Constraint("Vertical", 20))
sketch6.addConstraint(Sketcher.Constraint("Vertical", 22))
sketch6.addConstraint(Sketcher.Constraint("Equal", 0, 1))
sketch6.addConstraint(Sketcher.Constraint("Equal", 1, 2))
sketch6.addConstraint(Sketcher.Constraint("Equal", 2, 3))
sketch6.addConstraint(Sketcher.Constraint("Equal", 11, 13))
sketch6.addConstraint(Sketcher.Constraint("Equal", 13, 15))
sketch6.addConstraint(Sketcher.Constraint("Equal", 7, 17))
sketch6.addConstraint(Sketcher.Constraint("Equal", 15, 21))
sketch6.addConstraint(Sketcher.Constraint("Symmetric", 5, 3, 17, 3, -1, 1))
sketch6.addConstraint(Sketcher.Constraint("Symmetric", 9, 3, 21, 3, -1, 1))
sketch6.addConstraint(Sketcher.Constraint("Symmetric", 1, 3, 2, 3, -1))
sketch6.addConstraint(Sketcher.Constraint("Symmetric", 0, 3, 3, 3, -1))
sketch6.addConstraint(Sketcher.Constraint("Horizontal", 0, 3, 1, 3))
sketch6.addConstraint(Sketcher.Constraint("Horizontal", 7, 3, 17, 3))
sketch6.addConstraint(Sketcher.Constraint("Horizontal", 5, 3, 19, 3))
sketch6.addConstraint(Sketcher.Constraint("Horizontal", 11, 3, 21, 3))
sketch6.addConstraint(Sketcher.Constraint("Horizontal", 9, 3, 23, 3))
sketch6.addConstraint(Sketcher.Constraint("Diameter", 0, Q("3 mm")))
sketch6.addConstraint(Sketcher.Constraint("Radius", 5, Q("4 mm")))
sketch6.addConstraint(Sketcher.Constraint("Radius", 9, Q("5 mm")))
sketch6.addConstraint(Sketcher.Constraint("DistanceY", 4, 1, 4, 2, Q("30 mm")))
sketch6.addConstraint(Sketcher.Constraint("DistanceY", 8, 1, 8, 2, Q("50 mm")))
sketch6.addConstraint(Sketcher.Constraint("Angle", 12, Q("135 deg")))
sketch6.addConstraint(Sketcher.Constraint("Distance", 12, Q("16 mm")))
sketch6.addConstraint(Sketcher.Constraint("DistanceX", 0, 3, -1, 1, Q("135 mm")))
sketch6.addConstraint(Sketcher.Constraint("DistanceY", 0, 3, -1, 1, Q("30 mm")))
sketch6.addConstraint(Sketcher.Constraint("DistanceX", 1, 3, -1, 1, Q("85 mm")))
sketch6.addConstraint(Sketcher.Constraint("DistanceX", 5, 3, -1, 1, Q("130 mm")))
sketch6.addConstraint(Sketcher.Constraint("DistanceX", 9, 3, -1, 1, Q("65 mm")))
sketch6.addConstraint(Sketcher.Constraint("DistanceX", 12, 2, -1, 1, Q("83.192388 mm")))
sketch6.addConstraint(Sketcher.Constraint("DistanceY", 12, 2, -1, 1, Q("49.87868 mm")))
pocket5 = body.newObject("PartDesign::Pocket", "Pocket004")
pocket5.Profile = sketch6
pocket5.Length = 10
pocket5.Reversed = True

doc.recompute()
